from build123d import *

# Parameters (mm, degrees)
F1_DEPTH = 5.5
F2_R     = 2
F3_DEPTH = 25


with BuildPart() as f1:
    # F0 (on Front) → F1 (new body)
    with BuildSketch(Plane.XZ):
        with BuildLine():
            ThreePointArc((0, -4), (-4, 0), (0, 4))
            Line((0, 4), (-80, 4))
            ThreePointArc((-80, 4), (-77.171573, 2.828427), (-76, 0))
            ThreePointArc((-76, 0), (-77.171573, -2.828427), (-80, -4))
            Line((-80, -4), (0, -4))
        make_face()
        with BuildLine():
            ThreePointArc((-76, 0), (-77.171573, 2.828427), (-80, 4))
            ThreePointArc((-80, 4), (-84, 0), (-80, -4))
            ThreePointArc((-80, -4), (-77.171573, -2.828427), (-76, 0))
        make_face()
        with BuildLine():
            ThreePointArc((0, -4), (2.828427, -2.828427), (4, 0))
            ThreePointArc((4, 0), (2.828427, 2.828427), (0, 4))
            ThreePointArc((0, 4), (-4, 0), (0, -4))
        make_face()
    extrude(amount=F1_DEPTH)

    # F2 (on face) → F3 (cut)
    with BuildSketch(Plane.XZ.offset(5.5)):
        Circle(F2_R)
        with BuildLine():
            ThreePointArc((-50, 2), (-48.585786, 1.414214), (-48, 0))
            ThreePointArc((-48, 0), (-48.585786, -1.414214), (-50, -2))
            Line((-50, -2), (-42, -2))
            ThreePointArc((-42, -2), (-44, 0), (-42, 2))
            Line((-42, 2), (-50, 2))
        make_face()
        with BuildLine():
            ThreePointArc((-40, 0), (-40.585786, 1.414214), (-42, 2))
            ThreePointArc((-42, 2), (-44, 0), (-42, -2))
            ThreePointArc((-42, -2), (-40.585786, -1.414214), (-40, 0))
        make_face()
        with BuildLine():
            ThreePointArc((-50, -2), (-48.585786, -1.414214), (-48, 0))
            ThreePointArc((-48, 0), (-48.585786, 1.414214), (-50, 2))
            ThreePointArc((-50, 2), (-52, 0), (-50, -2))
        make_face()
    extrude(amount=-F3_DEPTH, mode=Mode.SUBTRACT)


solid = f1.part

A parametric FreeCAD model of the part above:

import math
import FreeCAD as App
import Part
import Sketcher

V = App.Vector

doc = App.newDocument("Part")
params = doc.addObject("Spreadsheet::Sheet", "Params")
for row, (alias, value) in enumerate([
    ("sketch1_radius", "4 mm"),
    ("sketch1_width", "80 mm"),
    ("pad1_length", "5.5 mm"),
    ("sketch2_diameter", "4 mm"),
    ("sketch2_width", "8 mm"),
    ("pocket1_length", "25 mm"),
], start=1):
    params.set(f"A{row}", alias)
    params.set(f"B{row}", "=" + value)
    params.setAlias(f"B{row}", alias)

body = doc.addObject("PartDesign::Body", "Body")

# Sketch on XZ plane
sketch1 = body.newObject("Sketcher::SketchObject", "Sketch")
sketch1.AttachmentSupport = (doc.getObject("XZ_Plane"), [""])
sketch1.MapMode = "FlatFace"
sketch1.addGeometry([
    Part.LineSegment(V(0, 4, 0), V(-80, 4, 0)),  # 0
    Part.ArcOfCircle(Part.Circle(V(-80, 0, 0), V(0, 0, 1), 4), math.radians(90), math.radians(270)),  # 1
    Part.LineSegment(V(-80, -4, 0), V(0, -4, 0)),  # 2
    Part.ArcOfCircle(Part.Circle(V(0, 0, 0), V(0, 0, 1), 4), math.radians(-90), math.radians(0)),  # 3
    Part.ArcOfCircle(Part.Circle(V(0, 0, 0), V(0, 0, 1), 4), math.radians(0), math.radians(90)),  # 4
], False)
sketch1.addConstraint([
    Sketcher.Constraint("Tangent", 0, 2, 1, 1),
    Sketcher.Constraint("Tangent", 1, 2, 2, 1),
    Sketcher.Constraint("Tangent", 2, 2, 3, 1),
    Sketcher.Constraint("Tangent", 3, 2, 4, 1),
    Sketcher.Constraint("Tangent", 4, 2, 0, 1),
    Sketcher.Constraint("Horizontal", 0),
    Sketcher.Constraint("Horizontal", 2),
    Sketcher.Constraint("Coincident", 3, 3, -1, 1),
    Sketcher.Constraint("Equal", 1, 3),
    Sketcher.Constraint("PointOnObject", 3, 2, -1),
    Sketcher.Constraint("Radius", 1, 4.0),
    Sketcher.Constraint("DistanceX", 0, 2, 0, 1, 80.0),
])
sketch1.setExpression("Constraints[10]", "Params.sketch1_radius")
sketch1.setExpression("Constraints[11]", "Params.sketch1_width")
pad1 = body.newObject("PartDesign::Pad", "Pad")
pad1.Profile = sketch1
pad1.setExpression("Length", "Params.pad1_length")

# Sketch on XZ plane
sketch2 = body.newObject("Sketcher::SketchObject", "Sketch001")
sketch2.AttachmentSupport = (doc.getObject("XZ_Plane"), [""])
sketch2.MapMode = "FlatFace"
sketch2.AttachmentOffset = App.Placement(V(0, 0, 5.5), App.Rotation())
sketch2.addGeometry([
    Part.Circle(V(0, 0, 0), V(0, 0, 1), 2),  # 0
    Part.LineSegment(V(-50, -2, 0), V(-42, -2, 0)),  # 1
    Part.ArcOfCircle(Part.Circle(V(-42, 0, 0), V(0, 0, 1), 2), math.radians(-90), math.radians(0)),  # 2
    Part.ArcOfCircle(Part.Circle(V(-42, 0, 0), V(0, 0, 1), 2), math.radians(0), math.radians(90)),  # 3
    Part.LineSegment(V(-42, 2, 0), V(-50, 2, 0)),  # 4
    Part.ArcOfCircle(Part.Circle(V(-50, 0, 0), V(0, 0, 1), 2), math.radians(90), math.radians(270)),  # 5
], False)
sketch2.addConstraint([
    Sketcher.Constraint("Tangent", 1, 2, 2, 1),
    Sketcher.Constraint("Tangent", 2, 2, 3, 1),
    Sketcher.Constraint("Tangent", 3, 2, 4, 1),
    Sketcher.Constraint("Tangent", 4, 2, 5, 1),
    Sketcher.Constraint("Tangent", 5, 2, 1, 1),
    Sketcher.Constraint("Horizontal", 1),
    Sketcher.Constraint("Horizontal", 4),
    Sketcher.Constraint("Coincident", 0, 3, -1, 1),
    Sketcher.Constraint("Equal", 0, 2),
    Sketcher.Constraint("Equal", 2, 3),
    Sketcher.Constraint("PointOnObject", 2, 3, -1),
    Sketcher.Constraint("PointOnObject", 2, 2, -1),
    Sketcher.Constraint("Diameter", 0, 4.0),
    Sketcher.Constraint("DistanceX", 1, 1, 1, 2, 8.0),
    Sketcher.Constraint("DistanceX", 2, 3, -1, 1, 41.999999),
])
sketch2.setExpression("Constraints[12]", "Params.sketch2_diameter")
sketch2.setExpression("Constraints[13]", "Params.sketch2_width")
pocket1 = body.newObject("PartDesign::Pocket", "Pocket")
pocket1.Profile = sketch2
pocket1.setExpression("Length", "Params.pocket1_length")

doc.recompute()
